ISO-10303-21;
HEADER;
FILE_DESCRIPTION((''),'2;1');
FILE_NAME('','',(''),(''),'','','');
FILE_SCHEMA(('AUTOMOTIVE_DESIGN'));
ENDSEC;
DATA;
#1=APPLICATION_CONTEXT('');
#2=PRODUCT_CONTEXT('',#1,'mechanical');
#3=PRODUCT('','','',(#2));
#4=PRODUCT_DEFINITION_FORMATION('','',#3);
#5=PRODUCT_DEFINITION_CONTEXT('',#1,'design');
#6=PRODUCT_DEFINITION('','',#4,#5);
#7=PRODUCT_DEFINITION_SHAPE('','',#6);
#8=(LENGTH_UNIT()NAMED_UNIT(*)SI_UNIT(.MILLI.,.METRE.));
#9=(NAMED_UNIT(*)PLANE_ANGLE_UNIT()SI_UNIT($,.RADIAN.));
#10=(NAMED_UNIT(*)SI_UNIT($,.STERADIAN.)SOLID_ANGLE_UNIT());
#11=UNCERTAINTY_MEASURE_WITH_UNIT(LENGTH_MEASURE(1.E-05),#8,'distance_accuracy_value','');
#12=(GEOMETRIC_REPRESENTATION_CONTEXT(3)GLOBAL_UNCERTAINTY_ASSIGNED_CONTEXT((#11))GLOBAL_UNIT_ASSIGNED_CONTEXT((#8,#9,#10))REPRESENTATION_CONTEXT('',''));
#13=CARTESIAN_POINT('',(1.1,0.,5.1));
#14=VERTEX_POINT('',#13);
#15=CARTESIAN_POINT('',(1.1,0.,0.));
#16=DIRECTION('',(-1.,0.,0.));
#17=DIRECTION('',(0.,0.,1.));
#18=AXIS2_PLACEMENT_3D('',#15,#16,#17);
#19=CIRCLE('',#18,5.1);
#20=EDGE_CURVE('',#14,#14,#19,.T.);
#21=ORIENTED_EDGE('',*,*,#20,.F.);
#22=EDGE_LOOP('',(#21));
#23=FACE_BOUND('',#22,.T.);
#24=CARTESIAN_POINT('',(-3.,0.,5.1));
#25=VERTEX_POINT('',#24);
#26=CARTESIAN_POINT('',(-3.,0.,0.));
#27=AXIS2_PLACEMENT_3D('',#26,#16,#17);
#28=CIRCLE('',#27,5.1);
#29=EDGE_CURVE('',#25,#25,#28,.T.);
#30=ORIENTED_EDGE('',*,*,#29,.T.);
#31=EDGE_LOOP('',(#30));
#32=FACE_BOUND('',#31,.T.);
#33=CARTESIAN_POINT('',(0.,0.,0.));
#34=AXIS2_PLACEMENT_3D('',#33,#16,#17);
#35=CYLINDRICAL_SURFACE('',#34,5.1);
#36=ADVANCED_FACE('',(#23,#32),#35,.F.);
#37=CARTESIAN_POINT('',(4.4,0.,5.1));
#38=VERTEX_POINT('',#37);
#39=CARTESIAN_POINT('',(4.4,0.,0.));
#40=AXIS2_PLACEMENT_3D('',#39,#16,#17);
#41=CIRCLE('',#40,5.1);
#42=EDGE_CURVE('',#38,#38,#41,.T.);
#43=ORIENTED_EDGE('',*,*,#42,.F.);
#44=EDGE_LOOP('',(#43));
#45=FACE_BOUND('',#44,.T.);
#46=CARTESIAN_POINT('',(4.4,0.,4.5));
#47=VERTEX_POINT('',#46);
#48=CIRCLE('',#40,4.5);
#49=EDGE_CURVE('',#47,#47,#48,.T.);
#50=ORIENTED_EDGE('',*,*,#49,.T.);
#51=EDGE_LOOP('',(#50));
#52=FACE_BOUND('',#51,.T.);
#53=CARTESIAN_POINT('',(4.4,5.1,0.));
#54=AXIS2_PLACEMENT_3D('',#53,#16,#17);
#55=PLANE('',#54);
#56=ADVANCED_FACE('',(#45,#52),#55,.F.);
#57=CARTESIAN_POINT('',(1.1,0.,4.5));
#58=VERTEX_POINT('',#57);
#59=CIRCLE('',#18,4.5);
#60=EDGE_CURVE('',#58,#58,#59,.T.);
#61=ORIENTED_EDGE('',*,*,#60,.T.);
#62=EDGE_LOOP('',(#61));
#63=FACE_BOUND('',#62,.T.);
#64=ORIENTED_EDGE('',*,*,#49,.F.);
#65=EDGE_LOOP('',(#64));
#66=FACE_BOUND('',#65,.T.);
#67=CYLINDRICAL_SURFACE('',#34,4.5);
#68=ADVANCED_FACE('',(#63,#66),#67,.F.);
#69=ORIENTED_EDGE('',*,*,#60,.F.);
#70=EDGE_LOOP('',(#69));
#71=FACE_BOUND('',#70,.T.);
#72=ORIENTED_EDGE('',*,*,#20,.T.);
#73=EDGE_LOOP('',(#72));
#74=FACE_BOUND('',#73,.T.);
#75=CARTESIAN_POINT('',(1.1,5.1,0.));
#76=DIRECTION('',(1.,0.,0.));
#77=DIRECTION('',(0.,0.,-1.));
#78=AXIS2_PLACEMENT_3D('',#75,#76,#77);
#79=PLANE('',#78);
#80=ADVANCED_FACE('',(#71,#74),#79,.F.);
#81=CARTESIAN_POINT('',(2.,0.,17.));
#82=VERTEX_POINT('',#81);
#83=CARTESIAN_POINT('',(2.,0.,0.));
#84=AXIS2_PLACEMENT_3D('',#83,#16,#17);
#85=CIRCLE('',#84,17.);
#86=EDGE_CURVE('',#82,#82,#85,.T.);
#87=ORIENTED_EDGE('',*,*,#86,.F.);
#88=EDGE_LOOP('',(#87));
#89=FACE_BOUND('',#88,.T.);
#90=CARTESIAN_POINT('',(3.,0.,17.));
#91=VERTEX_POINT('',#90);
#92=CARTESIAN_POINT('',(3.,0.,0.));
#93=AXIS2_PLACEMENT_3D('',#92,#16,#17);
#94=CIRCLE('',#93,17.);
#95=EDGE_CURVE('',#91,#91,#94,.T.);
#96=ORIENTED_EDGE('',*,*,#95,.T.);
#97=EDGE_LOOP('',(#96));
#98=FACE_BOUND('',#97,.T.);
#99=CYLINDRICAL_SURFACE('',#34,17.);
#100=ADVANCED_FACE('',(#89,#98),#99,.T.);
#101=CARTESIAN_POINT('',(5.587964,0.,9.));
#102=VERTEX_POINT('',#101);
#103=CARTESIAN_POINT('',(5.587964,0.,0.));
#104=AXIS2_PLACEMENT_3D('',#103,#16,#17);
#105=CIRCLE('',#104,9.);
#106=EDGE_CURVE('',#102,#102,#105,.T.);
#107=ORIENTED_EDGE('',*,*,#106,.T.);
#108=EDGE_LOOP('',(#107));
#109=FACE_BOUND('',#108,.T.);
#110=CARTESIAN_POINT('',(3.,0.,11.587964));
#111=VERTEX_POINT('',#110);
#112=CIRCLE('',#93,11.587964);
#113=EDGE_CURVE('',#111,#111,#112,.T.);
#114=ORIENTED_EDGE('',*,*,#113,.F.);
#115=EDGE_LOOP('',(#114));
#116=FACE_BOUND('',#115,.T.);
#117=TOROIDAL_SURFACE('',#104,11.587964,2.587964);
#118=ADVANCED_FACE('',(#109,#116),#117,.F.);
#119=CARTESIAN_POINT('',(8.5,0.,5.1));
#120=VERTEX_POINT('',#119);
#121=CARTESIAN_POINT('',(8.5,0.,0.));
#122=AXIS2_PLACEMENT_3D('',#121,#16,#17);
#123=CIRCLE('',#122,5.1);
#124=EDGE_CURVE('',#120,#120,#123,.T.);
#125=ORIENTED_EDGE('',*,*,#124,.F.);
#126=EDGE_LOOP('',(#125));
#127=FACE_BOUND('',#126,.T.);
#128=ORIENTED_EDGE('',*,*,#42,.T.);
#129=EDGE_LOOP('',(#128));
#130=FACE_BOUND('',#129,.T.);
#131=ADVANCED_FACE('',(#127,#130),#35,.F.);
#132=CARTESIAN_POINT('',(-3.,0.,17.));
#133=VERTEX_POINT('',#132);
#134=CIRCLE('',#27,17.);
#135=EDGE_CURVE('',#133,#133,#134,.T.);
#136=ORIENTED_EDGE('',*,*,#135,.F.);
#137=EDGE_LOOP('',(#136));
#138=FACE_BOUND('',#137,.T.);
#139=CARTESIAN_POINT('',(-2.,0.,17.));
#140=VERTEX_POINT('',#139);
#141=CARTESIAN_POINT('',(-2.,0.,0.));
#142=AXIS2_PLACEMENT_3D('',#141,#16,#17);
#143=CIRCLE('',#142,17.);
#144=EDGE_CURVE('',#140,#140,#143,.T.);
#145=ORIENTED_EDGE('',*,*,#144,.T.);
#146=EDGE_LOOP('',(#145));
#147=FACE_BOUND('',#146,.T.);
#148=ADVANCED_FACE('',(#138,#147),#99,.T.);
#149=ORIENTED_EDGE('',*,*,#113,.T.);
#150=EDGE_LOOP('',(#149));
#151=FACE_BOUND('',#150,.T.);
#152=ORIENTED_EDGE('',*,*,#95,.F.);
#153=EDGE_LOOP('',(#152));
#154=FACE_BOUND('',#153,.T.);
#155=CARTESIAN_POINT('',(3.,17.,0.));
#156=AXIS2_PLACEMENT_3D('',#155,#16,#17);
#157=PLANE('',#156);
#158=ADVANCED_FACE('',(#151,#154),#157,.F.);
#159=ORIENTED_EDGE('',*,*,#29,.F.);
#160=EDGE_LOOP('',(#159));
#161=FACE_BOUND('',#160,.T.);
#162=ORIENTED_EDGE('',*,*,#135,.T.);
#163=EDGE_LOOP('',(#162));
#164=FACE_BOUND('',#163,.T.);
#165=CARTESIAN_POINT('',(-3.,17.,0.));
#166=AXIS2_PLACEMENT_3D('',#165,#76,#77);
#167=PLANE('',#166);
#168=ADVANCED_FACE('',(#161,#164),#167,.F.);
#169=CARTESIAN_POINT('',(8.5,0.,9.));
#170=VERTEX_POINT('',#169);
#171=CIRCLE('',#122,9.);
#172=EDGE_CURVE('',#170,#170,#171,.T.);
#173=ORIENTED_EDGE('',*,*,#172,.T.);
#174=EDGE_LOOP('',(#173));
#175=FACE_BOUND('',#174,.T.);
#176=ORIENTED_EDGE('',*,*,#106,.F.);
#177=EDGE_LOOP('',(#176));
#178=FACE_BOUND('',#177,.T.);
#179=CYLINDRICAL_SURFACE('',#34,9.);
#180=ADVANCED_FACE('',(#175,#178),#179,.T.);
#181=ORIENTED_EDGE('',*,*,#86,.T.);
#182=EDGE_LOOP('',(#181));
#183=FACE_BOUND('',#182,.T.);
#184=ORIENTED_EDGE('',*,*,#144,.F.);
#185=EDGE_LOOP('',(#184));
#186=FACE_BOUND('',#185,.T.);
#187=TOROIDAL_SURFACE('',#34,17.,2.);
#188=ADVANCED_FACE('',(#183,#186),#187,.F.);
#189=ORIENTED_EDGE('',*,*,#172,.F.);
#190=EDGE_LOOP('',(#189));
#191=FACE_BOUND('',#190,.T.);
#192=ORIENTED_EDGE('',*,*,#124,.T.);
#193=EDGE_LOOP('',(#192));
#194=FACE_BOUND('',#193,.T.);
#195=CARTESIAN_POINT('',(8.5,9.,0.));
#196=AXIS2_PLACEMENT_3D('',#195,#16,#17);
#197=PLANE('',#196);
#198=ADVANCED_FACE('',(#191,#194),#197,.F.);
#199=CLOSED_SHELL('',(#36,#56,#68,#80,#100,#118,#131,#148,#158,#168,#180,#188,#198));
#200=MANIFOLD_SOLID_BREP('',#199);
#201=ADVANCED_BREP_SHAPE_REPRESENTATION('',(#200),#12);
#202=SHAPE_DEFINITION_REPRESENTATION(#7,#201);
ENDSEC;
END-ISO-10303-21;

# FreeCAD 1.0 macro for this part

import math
import FreeCAD as App
import Part
import Sketcher
from FreeCAD import Vector

doc = App.newDocument("Part")
params = doc.addObject("Spreadsheet::Sheet", "Params")
for row, (alias, value) in enumerate([
    ("sketch1_radius", "2 mm"),
    ("sketch1_width", "1 mm"),
    ("sketch1_width2", "4.1 mm"),
    ("sketch1_width3", "3.3 mm"),
    ("sketch1_height", "11.9 mm"),
    ("revolution_angle", "360 deg"),
], start=1):
    params.set(f"A{row}", alias)
    params.set(f"B{row}", "=" + value)
    params.setAlias(f"B{row}", alias)

body = doc.addObject("PartDesign::Body", "Body")

sketch1 = doc.addObject("Sketcher::SketchObject", "Sketch")
body.addObject(sketch1)
sketch1.AttachmentSupport = (doc.XY_Plane, [""])
sketch1.MapMode = "FlatFace"
sketch1.addGeometry([
    Part.LineSegment(Vector(3, 17, 0), Vector(2, 17, 0)),
    Part.ArcOfCircle(Part.Circle(Vector(0, 17, 0), Vector(0, 0, 1), 2), math.radians(180), math.radians(360)),
    Part.LineSegment(Vector(-2, 17, 0), Vector(-3, 17, 0)),
    Part.LineSegment(Vector(-3, 17, 0), Vector(-3, 5.1, 0)),
    Part.LineSegment(Vector(-3, 5.1, 0), Vector(1.1, 5.1, 0)),
    Part.LineSegment(Vector(1.1, 5.1, 0), Vector(1.1, 4.5, 0)),
    Part.LineSegment(Vector(1.1, 4.5, 0), Vector(4.4, 4.5, 0)),
    Part.LineSegment(Vector(4.4, 4.5, 0), Vector(4.4, 5.1, 0)),
    Part.LineSegment(Vector(4.4, 5.1, 0), Vector(8.5, 5.1, 0)),
    Part.LineSegment(Vector(8.5, 5.1, 0), Vector(8.5, 9, 0)),
    Part.LineSegment(Vector(8.5, 9, 0), Vector(5.6, 9, 0)),
    Part.ArcOfCircle(Part.Circle(Vector(5.6, 11.6, 0), Vector(0, 0, 1), 2.6), math.radians(-180), math.radians(-90)),
    Part.LineSegment(Vector(3, 11.6, 0), Vector(3, 17, 0)),
], False)
sketch1.addConstraint([
    Sketcher.Constraint("Coincident", 0, 2, 1, 2),
    Sketcher.Constraint("Coincident", 1, 1, 2, 1),
    Sketcher.Constraint("Coincident", 2, 2, 3, 1),
    Sketcher.Constraint("Coincident", 3, 2, 4, 1),
    Sketcher.Constraint("Coincident", 4, 2, 5, 1),
    Sketcher.Constraint("Coincident", 5, 2, 6, 1),
    Sketcher.Constraint("Coincident", 6, 2, 7, 1),
    Sketcher.Constraint("Coincident", 7, 2, 8, 1),
    Sketcher.Constraint("Coincident", 8, 2, 9, 1),
    Sketcher.Constraint("Coincident", 9, 2, 10, 1),
    Sketcher.Constraint("Tangent", 10, 2, 11, 2),
    Sketcher.Constraint("Tangent", 11, 1, 12, 1),
    Sketcher.Constraint("Coincident", 12, 2, 0, 1),
    Sketcher.Constraint("Horizontal", 0),
    Sketcher.Constraint("Horizontal", 2),
    Sketcher.Constraint("Vertical", 3),
    Sketcher.Constraint("Horizontal", 4),
    Sketcher.Constraint("Vertical", 5),
    Sketcher.Constraint("Horizontal", 6),
    Sketcher.Constraint("Vertical", 7),
    Sketcher.Constraint("Horizontal", 8),
    Sketcher.Constraint("Vertical", 9),
    Sketcher.Constraint("Horizontal", 10),
    Sketcher.Constraint("Vertical", 12),
    Sketcher.Constraint("Symmetric", 0, 2, 1, 1, -2),
    Sketcher.Constraint("Horizontal", 1, 3, 0, 2),
    Sketcher.Constraint("Horizontal", 4, 2, 7, 2),
    Sketcher.Constraint("Equal", 0, 2),
    Sketcher.Constraint("Equal", 4, 8),
    Sketcher.Constraint("Radius", 1, 2.0),
    Sketcher.Constraint("DistanceX", 0, 2, 0, 1, 1.0),
    Sketcher.Constraint("DistanceX", 4, 1, 4, 2, 4.1),
    Sketcher.Constraint("DistanceX", 6, 1, 6, 2, 3.3),
    Sketcher.Constraint("DistanceY", 3, 2, 3, 1, 11.9),
    Sketcher.Constraint("DistanceY", 5, 2, 5, 1, 0.6),
    Sketcher.Constraint("DistanceY", 9, 1, 9, 2, 3.9),
    Sketcher.Constraint("DistanceY", -1, 1, 1, 3, 17.0),
    Sketcher.Constraint("Radius", 11, 2.587964),
])
sketch1.setExpression("Constraints[29]", "Params.sketch1_radius")
sketch1.setExpression("Constraints[30]", "Params.sketch1_width")
sketch1.setExpression("Constraints[31]", "Params.sketch1_width2")
sketch1.setExpression("Constraints[32]", "Params.sketch1_width3")
sketch1.setExpression("Constraints[33]", "Params.sketch1_height")
revolution = doc.addObject("PartDesign::Revolution", "Revolution")
body.addObject(revolution)
revolution.Profile = sketch1
revolution.ReferenceAxis = (sketch1, ["H_Axis"])
revolution.setExpression("Angle", "Params.revolution_angle")

doc.recompute()
